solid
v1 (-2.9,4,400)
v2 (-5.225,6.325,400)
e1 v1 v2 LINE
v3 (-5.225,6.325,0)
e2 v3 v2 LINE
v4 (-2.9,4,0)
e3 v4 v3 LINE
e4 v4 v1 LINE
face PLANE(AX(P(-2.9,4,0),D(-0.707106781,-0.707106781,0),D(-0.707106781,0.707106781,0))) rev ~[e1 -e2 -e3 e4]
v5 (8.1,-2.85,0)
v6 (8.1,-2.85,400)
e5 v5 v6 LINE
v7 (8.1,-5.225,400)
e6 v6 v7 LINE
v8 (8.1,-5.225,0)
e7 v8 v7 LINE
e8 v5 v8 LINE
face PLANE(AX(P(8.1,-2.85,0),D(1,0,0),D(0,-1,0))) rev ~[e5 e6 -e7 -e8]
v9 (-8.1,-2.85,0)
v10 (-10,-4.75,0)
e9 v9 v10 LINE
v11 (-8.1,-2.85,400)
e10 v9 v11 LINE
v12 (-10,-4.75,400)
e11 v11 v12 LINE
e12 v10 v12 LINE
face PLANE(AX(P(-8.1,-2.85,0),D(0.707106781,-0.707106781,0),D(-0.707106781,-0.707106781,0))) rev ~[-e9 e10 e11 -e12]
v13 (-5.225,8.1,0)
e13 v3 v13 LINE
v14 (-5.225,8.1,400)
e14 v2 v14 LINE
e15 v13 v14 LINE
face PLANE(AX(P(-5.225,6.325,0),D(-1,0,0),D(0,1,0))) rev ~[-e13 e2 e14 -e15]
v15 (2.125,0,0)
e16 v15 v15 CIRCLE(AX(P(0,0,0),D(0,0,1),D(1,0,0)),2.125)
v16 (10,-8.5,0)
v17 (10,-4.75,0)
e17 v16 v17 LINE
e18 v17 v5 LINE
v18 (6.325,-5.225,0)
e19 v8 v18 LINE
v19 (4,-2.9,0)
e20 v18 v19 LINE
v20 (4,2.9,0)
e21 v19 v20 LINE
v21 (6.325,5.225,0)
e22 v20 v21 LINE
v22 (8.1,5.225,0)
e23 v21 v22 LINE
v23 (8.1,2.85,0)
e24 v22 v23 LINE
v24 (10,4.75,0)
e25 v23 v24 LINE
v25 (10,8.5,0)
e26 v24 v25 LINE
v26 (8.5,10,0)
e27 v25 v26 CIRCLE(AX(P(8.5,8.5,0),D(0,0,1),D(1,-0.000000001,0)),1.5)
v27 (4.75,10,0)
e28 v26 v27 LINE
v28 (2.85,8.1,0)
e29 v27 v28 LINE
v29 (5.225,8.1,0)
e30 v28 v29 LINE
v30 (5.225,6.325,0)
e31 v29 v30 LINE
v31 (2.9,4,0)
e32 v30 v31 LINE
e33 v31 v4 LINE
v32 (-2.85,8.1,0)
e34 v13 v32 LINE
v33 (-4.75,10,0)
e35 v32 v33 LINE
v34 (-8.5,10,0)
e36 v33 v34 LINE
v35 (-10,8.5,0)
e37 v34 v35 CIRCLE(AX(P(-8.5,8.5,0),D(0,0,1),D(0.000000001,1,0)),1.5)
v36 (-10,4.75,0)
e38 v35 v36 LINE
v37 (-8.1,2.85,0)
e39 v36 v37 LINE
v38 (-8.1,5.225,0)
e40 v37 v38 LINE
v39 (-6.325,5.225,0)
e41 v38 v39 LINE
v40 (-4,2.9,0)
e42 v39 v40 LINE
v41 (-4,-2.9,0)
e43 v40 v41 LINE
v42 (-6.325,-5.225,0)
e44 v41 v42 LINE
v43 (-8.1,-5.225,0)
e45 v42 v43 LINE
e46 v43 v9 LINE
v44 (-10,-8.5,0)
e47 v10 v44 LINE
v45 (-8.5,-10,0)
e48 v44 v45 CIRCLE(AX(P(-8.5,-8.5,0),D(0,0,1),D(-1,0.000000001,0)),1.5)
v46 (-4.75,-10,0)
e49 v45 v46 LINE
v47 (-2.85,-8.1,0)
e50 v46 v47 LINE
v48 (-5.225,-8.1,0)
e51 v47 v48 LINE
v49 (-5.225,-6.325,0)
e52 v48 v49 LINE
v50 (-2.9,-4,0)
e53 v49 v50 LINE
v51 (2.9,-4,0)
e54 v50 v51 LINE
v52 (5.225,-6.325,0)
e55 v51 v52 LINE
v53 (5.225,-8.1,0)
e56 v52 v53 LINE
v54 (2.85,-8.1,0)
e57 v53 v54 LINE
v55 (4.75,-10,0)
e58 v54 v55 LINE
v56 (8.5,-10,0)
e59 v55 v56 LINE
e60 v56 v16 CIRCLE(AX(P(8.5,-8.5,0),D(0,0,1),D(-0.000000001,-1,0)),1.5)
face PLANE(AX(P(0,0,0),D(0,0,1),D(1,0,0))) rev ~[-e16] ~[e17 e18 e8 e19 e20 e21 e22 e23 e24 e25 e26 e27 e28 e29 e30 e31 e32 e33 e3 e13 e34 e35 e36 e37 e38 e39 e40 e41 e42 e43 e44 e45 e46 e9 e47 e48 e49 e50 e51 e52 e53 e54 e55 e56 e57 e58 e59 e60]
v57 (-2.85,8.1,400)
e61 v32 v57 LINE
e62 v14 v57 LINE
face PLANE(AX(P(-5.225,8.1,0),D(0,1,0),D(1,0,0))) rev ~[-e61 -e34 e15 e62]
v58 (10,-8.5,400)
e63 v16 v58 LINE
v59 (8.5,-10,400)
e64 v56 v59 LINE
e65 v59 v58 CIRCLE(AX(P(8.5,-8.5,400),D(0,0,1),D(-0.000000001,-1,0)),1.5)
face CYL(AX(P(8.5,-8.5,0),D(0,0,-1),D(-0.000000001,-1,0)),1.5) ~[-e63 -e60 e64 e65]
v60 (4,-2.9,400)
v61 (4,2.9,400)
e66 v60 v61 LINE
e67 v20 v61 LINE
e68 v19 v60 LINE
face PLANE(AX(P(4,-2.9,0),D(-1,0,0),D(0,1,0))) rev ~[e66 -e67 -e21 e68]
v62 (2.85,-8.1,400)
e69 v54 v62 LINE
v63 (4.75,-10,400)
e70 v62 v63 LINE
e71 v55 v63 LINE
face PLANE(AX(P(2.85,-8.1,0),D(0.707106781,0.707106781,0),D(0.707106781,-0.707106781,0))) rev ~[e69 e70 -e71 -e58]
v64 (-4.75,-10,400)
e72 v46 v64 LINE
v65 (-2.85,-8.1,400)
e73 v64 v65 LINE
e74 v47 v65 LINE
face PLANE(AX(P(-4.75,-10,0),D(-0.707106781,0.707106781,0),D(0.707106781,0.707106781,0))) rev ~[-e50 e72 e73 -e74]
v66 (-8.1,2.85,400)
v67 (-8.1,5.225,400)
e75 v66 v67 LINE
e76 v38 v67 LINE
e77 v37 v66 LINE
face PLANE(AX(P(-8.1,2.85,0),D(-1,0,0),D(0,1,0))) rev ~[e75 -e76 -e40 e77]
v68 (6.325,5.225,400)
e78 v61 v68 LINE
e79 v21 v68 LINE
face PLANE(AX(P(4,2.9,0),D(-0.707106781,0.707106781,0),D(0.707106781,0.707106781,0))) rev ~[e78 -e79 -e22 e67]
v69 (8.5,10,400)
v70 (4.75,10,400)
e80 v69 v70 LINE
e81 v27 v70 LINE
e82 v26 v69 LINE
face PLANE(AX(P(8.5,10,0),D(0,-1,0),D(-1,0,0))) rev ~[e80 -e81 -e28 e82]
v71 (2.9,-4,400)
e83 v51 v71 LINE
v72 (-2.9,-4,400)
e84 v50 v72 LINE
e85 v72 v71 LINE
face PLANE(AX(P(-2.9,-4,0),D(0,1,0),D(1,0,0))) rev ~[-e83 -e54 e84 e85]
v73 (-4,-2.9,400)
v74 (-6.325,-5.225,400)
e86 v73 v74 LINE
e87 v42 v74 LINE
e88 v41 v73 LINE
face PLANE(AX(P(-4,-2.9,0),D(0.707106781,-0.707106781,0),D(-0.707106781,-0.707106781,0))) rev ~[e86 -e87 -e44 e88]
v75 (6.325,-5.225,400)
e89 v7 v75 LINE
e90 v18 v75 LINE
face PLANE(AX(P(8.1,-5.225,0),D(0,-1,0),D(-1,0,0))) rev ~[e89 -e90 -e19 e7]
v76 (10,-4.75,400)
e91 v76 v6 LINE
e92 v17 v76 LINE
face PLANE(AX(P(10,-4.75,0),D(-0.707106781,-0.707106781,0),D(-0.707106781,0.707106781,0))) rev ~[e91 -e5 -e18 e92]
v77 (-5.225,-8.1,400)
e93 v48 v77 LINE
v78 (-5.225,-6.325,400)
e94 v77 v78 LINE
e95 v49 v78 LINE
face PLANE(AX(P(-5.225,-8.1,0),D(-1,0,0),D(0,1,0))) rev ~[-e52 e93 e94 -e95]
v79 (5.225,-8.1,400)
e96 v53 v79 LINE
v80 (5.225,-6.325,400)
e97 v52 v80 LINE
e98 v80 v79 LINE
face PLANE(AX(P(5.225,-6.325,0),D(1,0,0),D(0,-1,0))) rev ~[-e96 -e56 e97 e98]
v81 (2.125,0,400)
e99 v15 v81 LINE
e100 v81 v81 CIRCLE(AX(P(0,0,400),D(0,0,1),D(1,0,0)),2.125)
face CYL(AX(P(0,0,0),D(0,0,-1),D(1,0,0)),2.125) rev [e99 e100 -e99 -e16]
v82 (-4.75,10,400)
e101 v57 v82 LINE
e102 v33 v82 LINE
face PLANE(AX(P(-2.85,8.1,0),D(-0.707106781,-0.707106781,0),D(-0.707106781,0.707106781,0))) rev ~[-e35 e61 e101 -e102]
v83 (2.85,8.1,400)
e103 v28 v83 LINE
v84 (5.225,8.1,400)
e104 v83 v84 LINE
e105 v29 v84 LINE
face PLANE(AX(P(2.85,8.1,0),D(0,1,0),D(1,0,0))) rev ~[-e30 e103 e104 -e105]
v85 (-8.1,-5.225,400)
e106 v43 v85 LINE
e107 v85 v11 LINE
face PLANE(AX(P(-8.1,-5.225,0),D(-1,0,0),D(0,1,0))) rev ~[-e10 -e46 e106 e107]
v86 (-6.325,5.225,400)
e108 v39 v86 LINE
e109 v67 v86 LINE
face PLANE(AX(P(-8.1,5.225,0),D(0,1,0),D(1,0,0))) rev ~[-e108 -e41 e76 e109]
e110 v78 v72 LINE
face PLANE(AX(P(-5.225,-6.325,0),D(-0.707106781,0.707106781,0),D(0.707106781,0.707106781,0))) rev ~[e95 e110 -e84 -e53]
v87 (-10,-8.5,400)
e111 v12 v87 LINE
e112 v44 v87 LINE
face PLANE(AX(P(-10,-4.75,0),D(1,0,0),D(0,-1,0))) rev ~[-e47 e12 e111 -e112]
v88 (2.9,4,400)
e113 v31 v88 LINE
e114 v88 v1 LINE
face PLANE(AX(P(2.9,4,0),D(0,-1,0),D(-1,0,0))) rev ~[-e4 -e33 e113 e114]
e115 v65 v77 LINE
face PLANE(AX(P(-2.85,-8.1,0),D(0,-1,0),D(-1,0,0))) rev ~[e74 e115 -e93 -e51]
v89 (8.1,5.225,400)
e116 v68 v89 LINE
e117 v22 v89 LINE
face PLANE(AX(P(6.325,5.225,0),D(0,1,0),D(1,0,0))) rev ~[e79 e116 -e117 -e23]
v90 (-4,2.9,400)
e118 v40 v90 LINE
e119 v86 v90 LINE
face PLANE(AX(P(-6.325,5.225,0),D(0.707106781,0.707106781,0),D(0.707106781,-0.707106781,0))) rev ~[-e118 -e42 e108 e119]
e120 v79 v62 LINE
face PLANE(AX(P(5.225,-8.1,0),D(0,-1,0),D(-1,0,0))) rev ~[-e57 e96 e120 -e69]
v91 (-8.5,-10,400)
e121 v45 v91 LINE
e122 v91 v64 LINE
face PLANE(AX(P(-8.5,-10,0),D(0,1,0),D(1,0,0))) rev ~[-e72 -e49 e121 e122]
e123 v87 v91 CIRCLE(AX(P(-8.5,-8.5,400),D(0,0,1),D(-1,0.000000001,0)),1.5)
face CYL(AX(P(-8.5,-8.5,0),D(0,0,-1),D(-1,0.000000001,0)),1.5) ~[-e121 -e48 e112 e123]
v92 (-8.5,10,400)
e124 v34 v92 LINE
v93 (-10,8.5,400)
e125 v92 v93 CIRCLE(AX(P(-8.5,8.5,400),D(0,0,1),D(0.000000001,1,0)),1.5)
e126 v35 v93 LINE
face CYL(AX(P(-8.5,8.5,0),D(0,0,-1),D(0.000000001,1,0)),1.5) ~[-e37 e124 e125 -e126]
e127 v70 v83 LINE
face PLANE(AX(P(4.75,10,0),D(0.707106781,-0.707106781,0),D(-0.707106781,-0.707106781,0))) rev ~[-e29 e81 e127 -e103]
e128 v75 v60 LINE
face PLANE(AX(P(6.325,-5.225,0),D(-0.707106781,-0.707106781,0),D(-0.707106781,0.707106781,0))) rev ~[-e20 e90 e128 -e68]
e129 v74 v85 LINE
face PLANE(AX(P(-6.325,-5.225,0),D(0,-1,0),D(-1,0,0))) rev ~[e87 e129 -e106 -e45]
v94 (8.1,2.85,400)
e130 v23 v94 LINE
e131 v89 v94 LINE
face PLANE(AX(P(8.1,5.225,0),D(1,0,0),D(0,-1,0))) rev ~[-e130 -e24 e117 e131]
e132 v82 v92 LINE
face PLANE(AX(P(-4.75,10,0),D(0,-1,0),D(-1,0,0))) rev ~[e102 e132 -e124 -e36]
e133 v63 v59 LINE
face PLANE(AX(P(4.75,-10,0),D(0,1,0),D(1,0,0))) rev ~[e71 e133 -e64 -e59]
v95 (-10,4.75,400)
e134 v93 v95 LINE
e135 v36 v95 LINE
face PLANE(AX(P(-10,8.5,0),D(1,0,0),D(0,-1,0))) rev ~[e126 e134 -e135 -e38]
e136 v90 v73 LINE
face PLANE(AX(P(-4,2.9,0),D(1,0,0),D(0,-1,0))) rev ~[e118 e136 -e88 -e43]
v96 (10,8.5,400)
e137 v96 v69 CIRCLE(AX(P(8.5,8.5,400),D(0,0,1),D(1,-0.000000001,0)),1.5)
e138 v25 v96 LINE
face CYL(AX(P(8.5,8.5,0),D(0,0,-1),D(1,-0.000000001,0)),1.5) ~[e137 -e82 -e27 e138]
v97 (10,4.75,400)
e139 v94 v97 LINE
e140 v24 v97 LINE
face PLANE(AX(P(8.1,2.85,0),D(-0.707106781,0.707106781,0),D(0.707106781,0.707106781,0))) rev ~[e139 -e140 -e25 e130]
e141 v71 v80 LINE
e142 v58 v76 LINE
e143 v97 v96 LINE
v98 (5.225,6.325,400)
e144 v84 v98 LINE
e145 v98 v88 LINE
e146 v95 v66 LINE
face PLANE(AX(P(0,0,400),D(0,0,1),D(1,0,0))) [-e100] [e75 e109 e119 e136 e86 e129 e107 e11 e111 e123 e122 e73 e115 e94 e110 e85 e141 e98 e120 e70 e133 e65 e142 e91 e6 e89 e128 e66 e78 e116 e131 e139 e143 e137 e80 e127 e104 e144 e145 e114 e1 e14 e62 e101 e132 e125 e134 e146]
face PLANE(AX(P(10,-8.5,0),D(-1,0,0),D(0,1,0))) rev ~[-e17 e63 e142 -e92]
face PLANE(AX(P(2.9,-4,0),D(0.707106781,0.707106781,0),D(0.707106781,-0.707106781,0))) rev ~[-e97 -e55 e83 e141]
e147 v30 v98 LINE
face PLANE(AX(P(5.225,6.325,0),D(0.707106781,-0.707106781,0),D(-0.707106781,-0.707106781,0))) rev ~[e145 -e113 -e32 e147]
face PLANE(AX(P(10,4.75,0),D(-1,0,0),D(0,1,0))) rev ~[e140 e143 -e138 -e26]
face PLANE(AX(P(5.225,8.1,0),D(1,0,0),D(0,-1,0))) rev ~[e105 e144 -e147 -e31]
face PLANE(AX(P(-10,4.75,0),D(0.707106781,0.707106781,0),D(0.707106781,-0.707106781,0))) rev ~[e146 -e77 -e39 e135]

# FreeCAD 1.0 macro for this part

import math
import FreeCAD as App
import Part
import Sketcher

doc = App.newDocument("Part")
body = doc.addObject("PartDesign::Body", "Body")

# Sketch on XY plane
sketch1 = body.newObject("Sketcher::SketchObject", "Sketch")
sketch1.AttachmentSupport = (doc.getObject("XY_Plane"), [""])
sketch1.MapMode = "FlatFace"
sketch1.addGeometry([
    Part.LineSegment(App.Vector(8.1, 5.2, 0), App.Vector(8.1, 2.9, 0)),  # 0
    Part.LineSegment(App.Vector(8.1, 2.9, 0), App.Vector(10, 4.8, 0)),  # 1
    Part.LineSegment(App.Vector(10, 4.8, 0), App.Vector(10, 8.5, 0)),  # 2
    Part.ArcOfCircle(Part.Circle(App.Vector(8.5, 8.5, 0), App.Vector(0, 0, 1), 1.5), math.radians(0), math.radians(90)),  # 3
    Part.LineSegment(App.Vector(8.5, 10, 0), App.Vector(4.8, 10, 0)),  # 4
    Part.LineSegment(App.Vector(4.8, 10, 0), App.Vector(2.9, 8.1, 0)),  # 5
    Part.LineSegment(App.Vector(2.9, 8.1, 0), App.Vector(5.2, 8.1, 0)),  # 6
    Part.LineSegment(App.Vector(5.2, 8.1, 0), App.Vector(5.2, 6.3, 0)),  # 7
    Part.LineSegment(App.Vector(5.2, 6.3, 0), App.Vector(2.9, 4, 0)),  # 8
    Part.LineSegment(App.Vector(2.9, 4, 0), App.Vector(-2.9, 4, 0)),  # 9
    Part.LineSegment(App.Vector(-2.9, 4, 0), App.Vector(-5.2, 6.3, 0)),  # 10
    Part.LineSegment(App.Vector(-5.2, 6.3, 0), App.Vector(-5.2, 8.1, 0)),  # 11
    Part.LineSegment(App.Vector(-5.2, 8.1, 0), App.Vector(-2.9, 8.1, 0)),  # 12
    Part.LineSegment(App.Vector(-2.9, 8.1, 0), App.Vector(-4.8, 10, 0)),  # 13
    Part.LineSegment(App.Vector(-4.8, 10, 0), App.Vector(-8.5, 10, 0)),  # 14
    Part.ArcOfCircle(Part.Circle(App.Vector(-8.5, 8.5, 0), App.Vector(0, 0, 1), 1.5), math.radians(90), math.radians(180)),  # 15
    Part.LineSegment(App.Vector(-10, 8.5, 0), App.Vector(-10, 4.8, 0)),  # 16
    Part.LineSegment(App.Vector(-10, 4.8, 0), App.Vector(-8.1, 2.9, 0)),  # 17
    Part.LineSegment(App.Vector(-8.1, 2.9, 0), App.Vector(-8.1, 5.2, 0)),  # 18
    Part.LineSegment(App.Vector(-8.1, 5.2, 0), App.Vector(-6.3, 5.2, 0)),  # 19
    Part.LineSegment(App.Vector(-6.3, 5.2, 0), App.Vector(-4, 2.9, 0)),  # 20
    Part.LineSegment(App.Vector(-4, 2.9, 0), App.Vector(-4, -2.9, 0)),  # 21
    Part.LineSegment(App.Vector(-4, -2.9, 0), App.Vector(-6.3, -5.2, 0)),  # 22
    Part.LineSegment(App.Vector(-6.3, -5.2, 0), App.Vector(-8.1, -5.2, 0)),  # 23
    Part.LineSegment(App.Vector(-8.1, -5.2, 0), App.Vector(-8.1, -2.9, 0)),  # 24
    Part.LineSegment(App.Vector(-8.1, -2.9, 0), App.Vector(-10, -4.8, 0)),  # 25
    Part.LineSegment(App.Vector(-10, -4.8, 0), App.Vector(-10, -8.5, 0)),  # 26
    Part.ArcOfCircle(Part.Circle(App.Vector(-8.5, -8.5, 0), App.Vector(0, 0, 1), 1.5), math.radians(180), math.radians(270)),  # 27
    Part.LineSegment(App.Vector(-8.5, -10, 0), App.Vector(-4.8, -10, 0)),  # 28
    Part.LineSegment(App.Vector(-4.8, -10, 0), App.Vector(-2.9, -8.1, 0)),  # 29
    Part.LineSegment(App.Vector(-2.9, -8.1, 0), App.Vector(-5.2, -8.1, 0)),  # 30
    Part.LineSegment(App.Vector(-5.2, -8.1, 0), App.Vector(-5.2, -6.3, 0)),  # 31
    Part.LineSegment(App.Vector(-5.2, -6.3, 0), App.Vector(-2.9, -4, 0)),  # 32
    Part.LineSegment(App.Vector(-2.9, -4, 0), App.Vector(2.9, -4, 0)),  # 33
    Part.LineSegment(App.Vector(2.9, -4, 0), App.Vector(5.2, -6.3, 0)),  # 34
    Part.LineSegment(App.Vector(5.2, -6.3, 0), App.Vector(5.2, -8.1, 0)),  # 35
    Part.LineSegment(App.Vector(5.2, -8.1, 0), App.Vector(2.9, -8.1, 0)),  # 36
    Part.LineSegment(App.Vector(2.9, -8.1, 0), App.Vector(4.8, -10, 0)),  # 37
    Part.LineSegment(App.Vector(4.8, -10, 0), App.Vector(8.5, -10, 0)),  # 38
    Part.ArcOfCircle(Part.Circle(App.Vector(8.5, -8.5, 0), App.Vector(0, 0, 1), 1.5), math.radians(-90), math.radians(0)),  # 39
    Part.LineSegment(App.Vector(10, -8.5, 0), App.Vector(10, -4.8, 0)),  # 40
    Part.LineSegment(App.Vector(10, -4.8, 0), App.Vector(8.1, -2.9, 0)),  # 41
    Part.LineSegment(App.Vector(8.1, -2.9, 0), App.Vector(8.1, -5.2, 0)),  # 42
    Part.LineSegment(App.Vector(8.1, -5.2, 0), App.Vector(6.3, -5.2, 0)),  # 43
    Part.LineSegment(App.Vector(6.3, -5.2, 0), App.Vector(4, -2.9, 0)),  # 44
    Part.LineSegment(App.Vector(4, -2.9, 0), App.Vector(4, 2.9, 0)),  # 45
    Part.LineSegment(App.Vector(4, 2.9, 0), App.Vector(6.3, 5.2, 0)),  # 46
    Part.LineSegment(App.Vector(6.3, 5.2, 0), App.Vector(8.1, 5.2, 0)),  # 47
    Part.Circle(App.Vector(0, 0, 0), App.Vector(0, 0, 1), 2.1),  # 48
], False)
sketch1.addConstraint([
    Sketcher.Constraint("Coincident", 0, 2, 1, 1),
    Sketcher.Constraint("Coincident", 1, 2, 2, 1),
    Sketcher.Constraint("Tangent", 2, 2, 3, 1),
    Sketcher.Constraint("Tangent", 3, 2, 4, 1),
    Sketcher.Constraint("Coincident", 4, 2, 5, 1),
    Sketcher.Constraint("Coincident", 5, 2, 6, 1),
    Sketcher.Constraint("Coincident", 6, 2, 7, 1),
    Sketcher.Constraint("Coincident", 7, 2, 8, 1),
    Sketcher.Constraint("Coincident", 8, 2, 9, 1),
    Sketcher.Constraint("Coincident", 9, 2, 10, 1),
    Sketcher.Constraint("Coincident", 10, 2, 11, 1),
    Sketcher.Constraint("Coincident", 11, 2, 12, 1),
    Sketcher.Constraint("Coincident", 12, 2, 13, 1),
    Sketcher.Constraint("Coincident", 13, 2, 14, 1),
    Sketcher.Constraint("Tangent", 14, 2, 15, 1),
    Sketcher.Constraint("Tangent", 15, 2, 16, 1),
    Sketcher.Constraint("Coincident", 16, 2, 17, 1),
    Sketcher.Constraint("Coincident", 17, 2, 18, 1),
    Sketcher.Constraint("Coincident", 18, 2, 19, 1),
    Sketcher.Constraint("Coincident", 19, 2, 20, 1),
    Sketcher.Constraint("Coincident", 20, 2, 21, 1),
    Sketcher.Constraint("Coincident", 21, 2, 22, 1),
    Sketcher.Constraint("Coincident", 22, 2, 23, 1),
    Sketcher.Constraint("Coincident", 23, 2, 24, 1),
    Sketcher.Constraint("Coincident", 24, 2, 25, 1),
    Sketcher.Constraint("Coincident", 25, 2, 26, 1),
    Sketcher.Constraint("Tangent", 26, 2, 27, 1),
    Sketcher.Constraint("Tangent", 27, 2, 28, 1),
    Sketcher.Constraint("Coincident", 28, 2, 29, 1),
    Sketcher.Constraint("Coincident", 29, 2, 30, 1),
    Sketcher.Constraint("Coincident", 30, 2, 31, 1),
    Sketcher.Constraint("Coincident", 31, 2, 32, 1),
    Sketcher.Constraint("Coincident", 32, 2, 33, 1),
    Sketcher.Constraint("Coincident", 33, 2, 34, 1),
    Sketcher.Constraint("Coincident", 34, 2, 35, 1),
    Sketcher.Constraint("Coincident", 35, 2, 36, 1),
    Sketcher.Constraint("Coincident", 36, 2, 37, 1),
    Sketcher.Constraint("Coincident", 37, 2, 38, 1),
    Sketcher.Constraint("Tangent", 38, 2, 39, 1),
    Sketcher.Constraint("Tangent", 39, 2, 40, 1),
    Sketcher.Constraint("Coincident", 40, 2, 41, 1),
    Sketcher.Constraint("Coincident", 41, 2, 42, 1),
    Sketcher.Constraint("Coincident", 42, 2, 43, 1),
    Sketcher.Constraint("Coincident", 43, 2, 44, 1),
    Sketcher.Constraint("Coincident", 44, 2, 45, 1),
    Sketcher.Constraint("Coincident", 45, 2, 46, 1),
    Sketcher.Constraint("Coincident", 46, 2, 47, 1),
    Sketcher.Constraint("Coincident", 47, 2, 0, 1),
    Sketcher.Constraint("Vertical", 0),
    Sketcher.Constraint("Vertical", 2),
    Sketcher.Constraint("Horizontal", 4),
    Sketcher.Constraint("Horizontal", 6),
    Sketcher.Constraint("Vertical", 7),
    Sketcher.Constraint("Horizontal", 9),
    Sketcher.Constraint("Vertical", 11),
    Sketcher.Constraint("Horizontal", 12),
    Sketcher.Constraint("Horizontal", 14),
    Sketcher.Constraint("Vertical", 16),
    Sketcher.Constraint("Vertical", 18),
    Sketcher.Constraint("Horizontal", 19),
    Sketcher.Constraint("Vertical", 21),
    Sketcher.Constraint("Horizontal", 23),
    Sketcher.Constraint("Vertical", 24),
    Sketcher.Constraint("Vertical", 26),
    Sketcher.Constraint("Horizontal", 28),
    Sketcher.Constraint("Horizontal", 30),
    Sketcher.Constraint("Vertical", 31),
    Sketcher.Constraint("Horizontal", 33),
    Sketcher.Constraint("Vertical", 35),
    Sketcher.Constraint("Horizontal", 36),
    Sketcher.Constraint("Horizontal", 38),
    Sketcher.Constraint("Vertical", 40),
    Sketcher.Constraint("Vertical", 42),
    Sketcher.Constraint("Horizontal", 43),
    Sketcher.Constraint("Vertical", 45),
    Sketcher.Constraint("Horizontal", 47),
    Sketcher.Constraint("Coincident", 48, 3, -1, 1),
    Sketcher.Constraint("Equal", 3, 15),
    Sketcher.Constraint("Equal", 15, 27),
    Sketcher.Constraint("Equal", 27, 39),
    Sketcher.Constraint("Symmetric", 3, 3, 27, 3, -1, 1),
    Sketcher.Constraint("Symmetric", 15, 3, 39, 3, -1, 1),
    Sketcher.Constraint("Symmetric", 0, 2, 24, 2, -1, 1),
    Sketcher.Constraint("Symmetric", 5, 2, 29, 2, -1, 1),
    Sketcher.Constraint("Symmetric", 7, 2, 31, 2, -1, 1),
    Sketcher.Constraint("Symmetric", 8, 2, 32, 2, -1, 1),
    Sketcher.Constraint("Symmetric", 10, 2, 34, 2, -1, 1),
    Sketcher.Constraint("Symmetric", 12, 2, 36, 2, -1, 1),
    Sketcher.Constraint("Symmetric", 17, 2, 41, 2, -1, 1),
    Sketcher.Constraint("Symmetric", 19, 2, 43, 2, -1, 1),
    Sketcher.Constraint("Symmetric", 20, 2, 44, 2, -1, 1),
    Sketcher.Constraint("Symmetric", 22, 2, 46, 2, -1, 1),
    Sketcher.Constraint("Symmetric", 3, 3, 15, 3, -2),
    Sketcher.Constraint("Symmetric", 7, 2, 10, 2, -2),
    Sketcher.Constraint("Symmetric", 5, 2, 12, 2, -2),
    Sketcher.Constraint("Symmetric", 0, 2, 17, 2, -2),
    Sketcher.Constraint("Symmetric", 22, 2, 43, 2, -2),
    Sketcher.Constraint("Parallel", 1, 5),
    Sketcher.Constraint("Parallel", 5, 8),
    Sketcher.Constraint("Perpendicular", 8, 10),
    Sketcher.Constraint("Parallel", 10, 13),
    Sketcher.Constraint("Parallel", 13, 17),
    Sketcher.Constraint("Parallel", 17, 20),
    Sketcher.Constraint("Perpendicular", 20, 22),
    Sketcher.Constraint("Parallel", 22, 25),
    Sketcher.Constraint("Parallel", 25, 29),
    Sketcher.Constraint("Perpendicular", 32, 34),
    Sketcher.Constraint("Parallel", 34, 37),
    Sketcher.Constraint("Parallel", 37, 41),
    Sketcher.Constraint("Perpendicular", 44, 46),
    Sketcher.Constraint("Horizontal", 1, 2, 16, 2),
    Sketcher.Constraint("Equal", 36, 0),
    Sketcher.Constraint("Equal", 38, 2),
    Sketcher.Constraint("Equal", 47, 7),
    Sketcher.Constraint("Equal", 33, 21),
    Sketcher.Constraint("Equal", 1, 5),
    Sketcher.Constraint("Equal", 10, 20),
    Sketcher.Constraint("Radius", 3, 1.5),
    Sketcher.Constraint("Diameter", 48, 4.25),
    Sketcher.Constraint("DistanceX", 9, 2, 9, 1, 5.8),
    Sketcher.Constraint("DistanceX", -1, 1, 1, 2, 10.0),
    Sketcher.Constraint("DistanceY", -1, 1, 8, 2, 4.0),
    Sketcher.Constraint("DistanceX", 4, 2, 4, 1, 3.75),
    Sketcher.Constraint("DistanceX", -1, 1, 0, 2, 8.1),
    Sketcher.Constraint("DistanceX", 6, 1, 6, 2, 2.375),
])
pad1 = body.newObject("PartDesign::Pad", "Pad")
pad1.Profile = sketch1
pad1.Length = 400

doc.recompute()
